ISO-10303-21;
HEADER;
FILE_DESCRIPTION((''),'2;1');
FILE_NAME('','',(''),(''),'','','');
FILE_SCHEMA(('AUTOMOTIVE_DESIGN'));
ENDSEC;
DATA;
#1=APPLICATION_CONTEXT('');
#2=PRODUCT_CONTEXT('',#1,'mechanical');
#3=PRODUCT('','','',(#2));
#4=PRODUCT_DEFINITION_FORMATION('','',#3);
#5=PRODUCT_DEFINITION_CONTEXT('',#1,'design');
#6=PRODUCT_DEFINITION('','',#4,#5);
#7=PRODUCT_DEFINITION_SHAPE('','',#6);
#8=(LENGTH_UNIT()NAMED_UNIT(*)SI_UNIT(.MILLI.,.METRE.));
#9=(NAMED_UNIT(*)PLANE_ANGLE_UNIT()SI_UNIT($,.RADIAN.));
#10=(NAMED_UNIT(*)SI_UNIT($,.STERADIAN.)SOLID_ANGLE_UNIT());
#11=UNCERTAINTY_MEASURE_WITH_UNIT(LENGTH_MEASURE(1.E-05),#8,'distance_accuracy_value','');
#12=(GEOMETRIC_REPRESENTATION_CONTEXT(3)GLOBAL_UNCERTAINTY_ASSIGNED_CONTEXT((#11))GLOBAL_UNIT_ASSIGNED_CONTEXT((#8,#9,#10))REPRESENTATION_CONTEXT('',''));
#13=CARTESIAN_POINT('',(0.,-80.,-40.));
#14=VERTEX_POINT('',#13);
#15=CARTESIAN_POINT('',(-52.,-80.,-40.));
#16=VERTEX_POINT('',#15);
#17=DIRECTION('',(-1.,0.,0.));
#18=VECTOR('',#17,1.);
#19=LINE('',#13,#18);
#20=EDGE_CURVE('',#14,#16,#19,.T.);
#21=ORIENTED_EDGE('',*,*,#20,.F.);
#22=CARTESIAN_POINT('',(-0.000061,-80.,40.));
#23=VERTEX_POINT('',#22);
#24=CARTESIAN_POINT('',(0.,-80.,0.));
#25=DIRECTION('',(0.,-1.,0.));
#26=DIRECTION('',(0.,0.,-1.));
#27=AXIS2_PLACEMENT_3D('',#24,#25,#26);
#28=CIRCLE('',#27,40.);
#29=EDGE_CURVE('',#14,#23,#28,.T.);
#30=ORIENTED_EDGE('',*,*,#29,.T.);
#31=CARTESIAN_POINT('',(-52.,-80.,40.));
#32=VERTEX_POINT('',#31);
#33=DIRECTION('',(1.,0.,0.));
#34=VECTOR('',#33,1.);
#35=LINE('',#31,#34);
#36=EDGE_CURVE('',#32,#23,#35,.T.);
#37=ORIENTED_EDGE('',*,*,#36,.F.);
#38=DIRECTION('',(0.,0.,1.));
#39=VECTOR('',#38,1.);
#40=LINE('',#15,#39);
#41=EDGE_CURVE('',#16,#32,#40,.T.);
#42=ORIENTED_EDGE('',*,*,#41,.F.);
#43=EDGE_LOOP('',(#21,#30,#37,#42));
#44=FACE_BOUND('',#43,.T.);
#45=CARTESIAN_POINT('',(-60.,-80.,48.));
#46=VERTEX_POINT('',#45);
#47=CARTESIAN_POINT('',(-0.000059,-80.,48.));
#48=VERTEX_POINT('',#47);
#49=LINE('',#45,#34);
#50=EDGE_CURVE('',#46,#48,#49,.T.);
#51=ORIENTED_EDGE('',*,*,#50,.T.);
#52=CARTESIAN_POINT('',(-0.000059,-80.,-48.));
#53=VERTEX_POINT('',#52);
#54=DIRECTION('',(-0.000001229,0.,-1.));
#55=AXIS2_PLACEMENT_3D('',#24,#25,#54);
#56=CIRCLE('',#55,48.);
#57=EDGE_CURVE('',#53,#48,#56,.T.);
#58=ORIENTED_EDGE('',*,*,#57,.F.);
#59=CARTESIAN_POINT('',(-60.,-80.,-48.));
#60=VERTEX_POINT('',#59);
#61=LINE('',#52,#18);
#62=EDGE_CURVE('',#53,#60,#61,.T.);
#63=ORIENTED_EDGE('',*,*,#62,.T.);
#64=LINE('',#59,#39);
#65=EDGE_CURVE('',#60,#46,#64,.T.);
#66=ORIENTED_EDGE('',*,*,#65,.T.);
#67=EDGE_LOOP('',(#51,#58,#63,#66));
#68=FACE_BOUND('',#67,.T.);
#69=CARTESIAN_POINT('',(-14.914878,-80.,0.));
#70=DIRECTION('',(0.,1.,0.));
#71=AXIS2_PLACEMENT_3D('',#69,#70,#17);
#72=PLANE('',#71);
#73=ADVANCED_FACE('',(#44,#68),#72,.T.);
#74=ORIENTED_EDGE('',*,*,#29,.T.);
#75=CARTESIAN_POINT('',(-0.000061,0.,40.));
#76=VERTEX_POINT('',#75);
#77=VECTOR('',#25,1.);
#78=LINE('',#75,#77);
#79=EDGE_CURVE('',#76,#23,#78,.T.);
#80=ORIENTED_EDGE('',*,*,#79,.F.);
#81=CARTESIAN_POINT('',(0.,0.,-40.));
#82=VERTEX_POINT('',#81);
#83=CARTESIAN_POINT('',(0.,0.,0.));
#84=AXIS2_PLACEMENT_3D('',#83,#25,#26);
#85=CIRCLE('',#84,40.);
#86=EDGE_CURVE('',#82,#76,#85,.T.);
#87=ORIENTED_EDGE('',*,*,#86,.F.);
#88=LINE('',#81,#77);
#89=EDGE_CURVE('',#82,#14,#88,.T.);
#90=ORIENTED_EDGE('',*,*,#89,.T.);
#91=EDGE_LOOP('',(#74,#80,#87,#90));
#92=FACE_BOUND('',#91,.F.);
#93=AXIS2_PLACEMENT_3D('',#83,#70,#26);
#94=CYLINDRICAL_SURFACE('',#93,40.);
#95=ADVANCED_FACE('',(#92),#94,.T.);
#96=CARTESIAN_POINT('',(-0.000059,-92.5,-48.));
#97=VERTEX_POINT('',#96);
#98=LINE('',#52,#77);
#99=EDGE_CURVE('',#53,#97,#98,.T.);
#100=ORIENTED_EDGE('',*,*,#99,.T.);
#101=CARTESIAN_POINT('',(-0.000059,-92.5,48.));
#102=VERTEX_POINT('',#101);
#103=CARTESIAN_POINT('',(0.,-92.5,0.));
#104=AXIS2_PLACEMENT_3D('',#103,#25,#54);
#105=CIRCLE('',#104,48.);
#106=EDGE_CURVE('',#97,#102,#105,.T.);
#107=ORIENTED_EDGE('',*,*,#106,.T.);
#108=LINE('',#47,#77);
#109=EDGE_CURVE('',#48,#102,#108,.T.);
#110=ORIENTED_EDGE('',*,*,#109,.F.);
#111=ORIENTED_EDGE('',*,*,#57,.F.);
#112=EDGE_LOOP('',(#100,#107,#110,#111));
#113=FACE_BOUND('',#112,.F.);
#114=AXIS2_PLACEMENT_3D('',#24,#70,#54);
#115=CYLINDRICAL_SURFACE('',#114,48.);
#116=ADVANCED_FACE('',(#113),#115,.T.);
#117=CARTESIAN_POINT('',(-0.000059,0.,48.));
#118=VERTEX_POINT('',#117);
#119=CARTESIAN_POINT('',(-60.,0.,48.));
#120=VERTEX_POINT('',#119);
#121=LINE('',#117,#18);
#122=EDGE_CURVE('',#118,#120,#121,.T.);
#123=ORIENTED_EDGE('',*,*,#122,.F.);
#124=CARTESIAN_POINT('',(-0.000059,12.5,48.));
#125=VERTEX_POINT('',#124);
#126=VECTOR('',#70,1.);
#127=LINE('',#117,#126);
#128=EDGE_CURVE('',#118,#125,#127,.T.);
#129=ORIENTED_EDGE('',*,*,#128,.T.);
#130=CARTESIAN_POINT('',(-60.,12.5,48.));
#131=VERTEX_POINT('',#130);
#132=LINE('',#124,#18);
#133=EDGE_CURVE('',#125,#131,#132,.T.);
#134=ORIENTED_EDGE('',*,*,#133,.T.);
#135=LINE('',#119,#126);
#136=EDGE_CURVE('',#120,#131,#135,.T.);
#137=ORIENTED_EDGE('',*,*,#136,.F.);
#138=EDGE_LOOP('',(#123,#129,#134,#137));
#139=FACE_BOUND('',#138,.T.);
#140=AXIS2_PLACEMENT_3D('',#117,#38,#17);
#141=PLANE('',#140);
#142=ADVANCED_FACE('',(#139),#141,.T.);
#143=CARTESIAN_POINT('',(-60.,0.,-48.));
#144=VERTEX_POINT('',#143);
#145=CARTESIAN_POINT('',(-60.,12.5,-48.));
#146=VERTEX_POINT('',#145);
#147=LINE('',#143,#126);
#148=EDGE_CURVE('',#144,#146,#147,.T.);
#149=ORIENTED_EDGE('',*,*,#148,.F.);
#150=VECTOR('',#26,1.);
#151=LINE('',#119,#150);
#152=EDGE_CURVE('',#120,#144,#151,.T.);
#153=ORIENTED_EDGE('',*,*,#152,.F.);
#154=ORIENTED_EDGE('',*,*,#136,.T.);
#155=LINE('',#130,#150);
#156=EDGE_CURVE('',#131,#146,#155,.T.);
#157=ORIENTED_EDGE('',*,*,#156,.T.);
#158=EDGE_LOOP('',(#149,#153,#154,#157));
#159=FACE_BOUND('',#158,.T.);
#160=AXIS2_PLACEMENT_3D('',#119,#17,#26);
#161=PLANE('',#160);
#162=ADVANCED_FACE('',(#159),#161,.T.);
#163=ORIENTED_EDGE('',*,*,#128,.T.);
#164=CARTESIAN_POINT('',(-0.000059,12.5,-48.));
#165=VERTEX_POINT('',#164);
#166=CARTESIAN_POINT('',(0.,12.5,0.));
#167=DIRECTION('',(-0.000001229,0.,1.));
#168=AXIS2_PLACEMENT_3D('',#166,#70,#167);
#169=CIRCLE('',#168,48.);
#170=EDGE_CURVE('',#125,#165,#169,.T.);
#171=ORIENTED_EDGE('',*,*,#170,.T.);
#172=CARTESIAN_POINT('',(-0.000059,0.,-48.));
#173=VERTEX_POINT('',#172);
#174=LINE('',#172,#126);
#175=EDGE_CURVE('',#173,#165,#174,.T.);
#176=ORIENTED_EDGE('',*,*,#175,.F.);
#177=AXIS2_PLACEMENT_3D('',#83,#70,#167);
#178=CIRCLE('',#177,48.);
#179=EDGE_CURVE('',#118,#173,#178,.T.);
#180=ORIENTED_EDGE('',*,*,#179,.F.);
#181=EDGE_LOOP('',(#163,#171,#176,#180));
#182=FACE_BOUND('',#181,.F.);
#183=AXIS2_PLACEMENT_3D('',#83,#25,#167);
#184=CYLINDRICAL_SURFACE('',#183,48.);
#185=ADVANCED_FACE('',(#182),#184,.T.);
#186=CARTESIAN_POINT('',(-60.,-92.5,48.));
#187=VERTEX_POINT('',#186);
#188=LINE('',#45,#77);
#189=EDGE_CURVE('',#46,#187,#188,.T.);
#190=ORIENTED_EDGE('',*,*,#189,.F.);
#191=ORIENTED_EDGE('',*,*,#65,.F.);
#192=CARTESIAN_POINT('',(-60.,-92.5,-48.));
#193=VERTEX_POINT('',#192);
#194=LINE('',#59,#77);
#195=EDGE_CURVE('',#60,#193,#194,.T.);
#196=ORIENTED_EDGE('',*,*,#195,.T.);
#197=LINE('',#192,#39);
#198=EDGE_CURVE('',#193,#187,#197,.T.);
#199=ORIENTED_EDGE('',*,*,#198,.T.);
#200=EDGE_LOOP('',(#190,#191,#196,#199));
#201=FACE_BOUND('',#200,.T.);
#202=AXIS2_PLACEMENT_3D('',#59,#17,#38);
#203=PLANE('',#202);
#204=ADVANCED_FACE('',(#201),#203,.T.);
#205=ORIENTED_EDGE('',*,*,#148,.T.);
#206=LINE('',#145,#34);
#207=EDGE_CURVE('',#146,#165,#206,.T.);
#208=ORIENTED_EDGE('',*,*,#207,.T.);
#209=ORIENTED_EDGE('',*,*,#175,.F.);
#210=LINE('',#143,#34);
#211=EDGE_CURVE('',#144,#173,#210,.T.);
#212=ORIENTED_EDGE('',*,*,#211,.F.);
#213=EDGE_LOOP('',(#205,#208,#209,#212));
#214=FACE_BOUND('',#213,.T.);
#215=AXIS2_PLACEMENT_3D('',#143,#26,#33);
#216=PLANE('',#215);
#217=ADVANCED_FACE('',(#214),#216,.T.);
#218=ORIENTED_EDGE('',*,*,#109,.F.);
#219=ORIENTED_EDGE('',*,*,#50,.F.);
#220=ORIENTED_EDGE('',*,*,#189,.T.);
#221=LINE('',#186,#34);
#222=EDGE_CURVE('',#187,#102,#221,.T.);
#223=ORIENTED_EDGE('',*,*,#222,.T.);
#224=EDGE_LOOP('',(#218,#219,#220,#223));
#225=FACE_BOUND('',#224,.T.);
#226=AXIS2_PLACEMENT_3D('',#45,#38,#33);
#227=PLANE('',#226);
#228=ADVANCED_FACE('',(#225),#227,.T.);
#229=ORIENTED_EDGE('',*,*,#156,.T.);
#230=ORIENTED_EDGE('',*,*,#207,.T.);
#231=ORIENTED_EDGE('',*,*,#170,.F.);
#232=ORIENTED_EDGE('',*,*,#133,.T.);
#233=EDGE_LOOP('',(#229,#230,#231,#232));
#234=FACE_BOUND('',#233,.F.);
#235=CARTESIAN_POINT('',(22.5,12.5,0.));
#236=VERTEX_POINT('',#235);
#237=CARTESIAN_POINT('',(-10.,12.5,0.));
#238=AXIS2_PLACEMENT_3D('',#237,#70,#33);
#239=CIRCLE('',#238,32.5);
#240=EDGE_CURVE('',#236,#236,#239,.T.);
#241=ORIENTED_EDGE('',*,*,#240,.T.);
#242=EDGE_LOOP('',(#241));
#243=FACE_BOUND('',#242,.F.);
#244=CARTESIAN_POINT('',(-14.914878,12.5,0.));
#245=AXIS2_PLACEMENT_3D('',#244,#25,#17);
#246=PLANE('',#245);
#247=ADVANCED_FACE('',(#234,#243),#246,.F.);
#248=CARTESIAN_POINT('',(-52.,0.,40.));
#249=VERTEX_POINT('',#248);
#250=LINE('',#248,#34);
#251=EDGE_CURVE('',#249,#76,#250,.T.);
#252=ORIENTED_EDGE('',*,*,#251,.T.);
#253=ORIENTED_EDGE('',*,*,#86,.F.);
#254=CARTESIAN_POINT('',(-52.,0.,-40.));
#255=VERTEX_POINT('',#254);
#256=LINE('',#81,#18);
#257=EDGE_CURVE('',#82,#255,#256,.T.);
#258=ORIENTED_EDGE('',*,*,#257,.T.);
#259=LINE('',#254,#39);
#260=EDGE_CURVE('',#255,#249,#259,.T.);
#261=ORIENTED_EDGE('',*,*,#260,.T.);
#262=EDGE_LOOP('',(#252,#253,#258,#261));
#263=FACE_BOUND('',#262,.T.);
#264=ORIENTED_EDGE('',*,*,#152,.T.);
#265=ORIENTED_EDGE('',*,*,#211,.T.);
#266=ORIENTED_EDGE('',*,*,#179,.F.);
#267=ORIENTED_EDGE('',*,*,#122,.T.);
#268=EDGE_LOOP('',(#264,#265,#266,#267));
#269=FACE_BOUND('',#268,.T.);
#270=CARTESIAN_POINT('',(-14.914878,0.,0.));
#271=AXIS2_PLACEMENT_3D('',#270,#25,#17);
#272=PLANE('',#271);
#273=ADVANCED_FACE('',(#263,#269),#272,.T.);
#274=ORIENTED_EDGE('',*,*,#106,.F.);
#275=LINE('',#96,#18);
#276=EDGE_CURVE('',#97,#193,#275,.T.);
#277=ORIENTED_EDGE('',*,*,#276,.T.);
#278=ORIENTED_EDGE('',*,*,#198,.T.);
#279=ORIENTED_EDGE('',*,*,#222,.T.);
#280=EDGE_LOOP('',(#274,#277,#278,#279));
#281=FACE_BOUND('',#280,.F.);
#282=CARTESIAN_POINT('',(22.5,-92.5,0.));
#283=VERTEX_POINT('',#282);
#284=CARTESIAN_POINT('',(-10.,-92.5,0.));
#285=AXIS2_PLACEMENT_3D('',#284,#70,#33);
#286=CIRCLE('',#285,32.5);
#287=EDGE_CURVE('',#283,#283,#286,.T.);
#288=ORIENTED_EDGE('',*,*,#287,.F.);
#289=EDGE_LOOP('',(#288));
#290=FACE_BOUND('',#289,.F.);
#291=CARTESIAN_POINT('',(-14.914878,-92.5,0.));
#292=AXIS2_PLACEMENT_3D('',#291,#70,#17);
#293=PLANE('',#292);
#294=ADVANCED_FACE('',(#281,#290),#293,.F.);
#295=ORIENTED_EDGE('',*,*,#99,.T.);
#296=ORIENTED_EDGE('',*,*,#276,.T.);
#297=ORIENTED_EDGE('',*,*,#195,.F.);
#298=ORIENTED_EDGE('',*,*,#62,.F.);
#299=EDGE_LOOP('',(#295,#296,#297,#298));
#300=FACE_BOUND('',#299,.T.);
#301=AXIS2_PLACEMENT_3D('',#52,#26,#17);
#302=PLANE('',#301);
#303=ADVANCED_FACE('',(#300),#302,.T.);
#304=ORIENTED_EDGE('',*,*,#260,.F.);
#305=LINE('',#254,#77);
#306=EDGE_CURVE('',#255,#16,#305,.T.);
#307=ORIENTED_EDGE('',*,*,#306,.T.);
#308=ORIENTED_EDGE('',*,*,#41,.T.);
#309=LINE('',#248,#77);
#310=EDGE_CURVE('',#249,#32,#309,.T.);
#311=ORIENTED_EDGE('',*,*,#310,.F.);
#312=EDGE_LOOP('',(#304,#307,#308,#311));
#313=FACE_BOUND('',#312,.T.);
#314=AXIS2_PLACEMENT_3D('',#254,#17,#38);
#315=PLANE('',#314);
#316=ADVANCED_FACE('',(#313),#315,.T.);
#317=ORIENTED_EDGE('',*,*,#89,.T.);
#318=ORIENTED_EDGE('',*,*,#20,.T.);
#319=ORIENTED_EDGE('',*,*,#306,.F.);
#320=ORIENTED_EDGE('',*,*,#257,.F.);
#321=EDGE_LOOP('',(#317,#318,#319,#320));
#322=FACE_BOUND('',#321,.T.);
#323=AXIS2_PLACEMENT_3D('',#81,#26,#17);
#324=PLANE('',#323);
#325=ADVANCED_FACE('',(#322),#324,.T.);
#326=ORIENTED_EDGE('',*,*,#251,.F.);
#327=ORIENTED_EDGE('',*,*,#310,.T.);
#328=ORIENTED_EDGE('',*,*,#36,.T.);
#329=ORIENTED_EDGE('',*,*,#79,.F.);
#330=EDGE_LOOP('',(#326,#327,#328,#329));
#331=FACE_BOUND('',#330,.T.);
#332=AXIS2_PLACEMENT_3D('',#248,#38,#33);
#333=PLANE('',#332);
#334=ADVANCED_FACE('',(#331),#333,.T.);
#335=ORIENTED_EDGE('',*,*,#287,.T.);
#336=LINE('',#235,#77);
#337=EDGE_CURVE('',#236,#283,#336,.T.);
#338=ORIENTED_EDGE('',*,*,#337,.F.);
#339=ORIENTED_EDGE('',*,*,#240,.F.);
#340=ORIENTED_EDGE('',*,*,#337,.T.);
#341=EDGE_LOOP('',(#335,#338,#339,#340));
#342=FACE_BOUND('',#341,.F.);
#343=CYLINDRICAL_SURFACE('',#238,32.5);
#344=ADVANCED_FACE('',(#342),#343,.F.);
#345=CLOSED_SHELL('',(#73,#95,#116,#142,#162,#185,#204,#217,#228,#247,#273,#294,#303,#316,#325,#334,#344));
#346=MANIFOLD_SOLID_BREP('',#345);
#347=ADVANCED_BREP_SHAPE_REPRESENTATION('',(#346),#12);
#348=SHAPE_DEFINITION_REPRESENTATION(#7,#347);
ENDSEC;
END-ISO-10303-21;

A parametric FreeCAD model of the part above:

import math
import FreeCAD as App
import Part
import Sketcher

doc = App.newDocument("Part")
body = doc.addObject("PartDesign::Body", "Body")

sketch1 = body.newObject("Sketcher::SketchObject", "Sketch")
sketch1.AttachmentSupport = (doc.getObject("XZ_Plane"), [""])
sketch1.MapMode = "FlatFace"
sketch1.addGeometry([
    Part.ArcOfCircle(Part.Circle(App.Vector(0, 0, 0), App.Vector(0, 0, 1), 40), math.radians(-90), math.radians(90.000087)),
    Part.LineSegment(App.Vector(-0.000061, 40, 0), App.Vector(-52, 40, 0)),
    Part.LineSegment(App.Vector(-52, 40, 0), App.Vector(-52, -40, 0)),
    Part.LineSegment(App.Vector(-52, -40, 0), App.Vector(0, -40, 0)),
], False)
sketch1.addConstraint([
    Sketcher.Constraint("Coincident", 0, 2, 1, 1),
    Sketcher.Constraint("Coincident", 1, 2, 2, 1),
    Sketcher.Constraint("Coincident", 2, 2, 3, 1),
    Sketcher.Constraint("Coincident", 3, 2, 0, 1),
    Sketcher.Constraint("Horizontal", 1),
    Sketcher.Constraint("Vertical", 2),
    Sketcher.Constraint("Horizontal", 3),
    Sketcher.Constraint("Coincident", 0, 3, -1, 1),
    Sketcher.Constraint("PointOnObject", 3, 2, -2),
    Sketcher.Constraint("Radius", 0, 40.0),
    Sketcher.Constraint("DistanceX", 3, 1, 3, 2, 52.0),
    Sketcher.Constraint("DistanceX", 1, 2, 1, 1, 51.999939),
])
pad1 = body.newObject("PartDesign::Pad", "Pad")
pad1.Profile = sketch1
pad1.Length = 80

sketch2 = body.newObject("Sketcher::SketchObject", "Sketch001")
sketch2.AttachmentSupport = (doc.getObject("XZ_Plane"), [""])
sketch2.MapMode = "FlatFace"
sketch2.AttachmentOffset = App.Placement(App.Vector(0, 0, 80), App.Rotation())
sketch2.addGeometry([
    Part.LineSegment(App.Vector(-0.000059, 48, 0), App.Vector(-60, 48, 0)),
    Part.LineSegment(App.Vector(-60, 48, 0), App.Vector(-60, -48, 0)),
    Part.LineSegment(App.Vector(-60, -48, 0), App.Vector(-0.000059, -48, 0)),
    Part.ArcOfCircle(Part.Circle(App.Vector(0, 0, 0), App.Vector(0, 0, 1), 48), math.radians(-90.00007), math.radians(90.00007)),
], False)
sketch2.addConstraint([
    Sketcher.Constraint("Coincident", 0, 2, 1, 1),
    Sketcher.Constraint("Coincident", 1, 2, 2, 1),
    Sketcher.Constraint("Coincident", 2, 2, 3, 1),
    Sketcher.Constraint("Coincident", 3, 2, 0, 1),
    Sketcher.Constraint("Horizontal", 0),
    Sketcher.Constraint("Vertical", 1),
    Sketcher.Constraint("Horizontal", 2),
    Sketcher.Constraint("Coincident", 3, 3, -1, 1),
    Sketcher.Constraint("Radius", 3, 48.0),
    Sketcher.Constraint("DistanceX", 0, 2, -1, 1, 60.0),
    Sketcher.Constraint("DistanceX", 0, 2, 0, 1, 59.999941),
    Sketcher.Constraint("DistanceX", 2, 1, 2, 2, 59.999941),
])
pad2 = body.newObject("PartDesign::Pad", "Pad001")
pad2.Profile = sketch2
pad2.Length = 12.5

sketch3 = body.newObject("Sketcher::SketchObject", "Sketch002")
sketch3.AttachmentSupport = (doc.getObject("XZ_Plane"), [""])
sketch3.MapMode = "FlatFace"
sketch3.addGeometry([
    Part.LineSegment(App.Vector(-0.000059, -48, 0), App.Vector(-60, -48, 0)),
    Part.LineSegment(App.Vector(-60, -48, 0), App.Vector(-60, 48, 0)),
    Part.LineSegment(App.Vector(-60, 48, 0), App.Vector(-0.000059, 48, 0)),
    Part.ArcOfCircle(Part.Circle(App.Vector(0, 0, 0), App.Vector(0, 0, 1), 48), math.radians(-90.00007), math.radians(90.00007)),
], False)
sketch3.addConstraint([
    Sketcher.Constraint("Coincident", 0, 2, 1, 1),
    Sketcher.Constraint("Coincident", 1, 2, 2, 1),
    Sketcher.Constraint("Coincident", 2, 2, 3, 2),
    Sketcher.Constraint("Coincident", 3, 1, 0, 1),
    Sketcher.Constraint("Horizontal", 0),
    Sketcher.Constraint("Vertical", 1),
    Sketcher.Constraint("Horizontal", 2),
    Sketcher.Constraint("Coincident", 3, 3, -1, 1),
    Sketcher.Constraint("Radius", 3, 48.0),
    Sketcher.Constraint("DistanceX", 0, 2, -1, 1, 60.0),
    Sketcher.Constraint("DistanceX", 0, 2, 0, 1, 59.999941),
    Sketcher.Constraint("DistanceX", 2, 1, 2, 2, 59.999941),
])
pad3 = body.newObject("PartDesign::Pad", "Pad002")
pad3.Profile = sketch3
pad3.Length = 12.5
pad3.Reversed = True

sketch4 = body.newObject("Sketcher::SketchObject", "Sketch003")
sketch4.AttachmentSupport = (doc.getObject("XZ_Plane"), [""])
sketch4.MapMode = "FlatFace"
sketch4.AttachmentOffset = App.Placement(App.Vector(0, 0, -12.5), App.Rotation())
sketch4.addGeometry(Part.Circle(App.Vector(-10, 0, 0), App.Vector(0, 0, 1), 32.5), False)
sketch4.addConstraint([
    Sketcher.Constraint("PointOnObject", 0, 3, -1),
    Sketcher.Constraint("Diameter", 0, 65.0),
    Sketcher.Constraint("DistanceX", 0, 3, -1, 1, 10.0),
])
pocket1 = body.newObject("PartDesign::Pocket", "Pocket")
pocket1.Profile = sketch4
pocket1.Type = "ThroughAll"
pocket1.Reversed = True

doc.recompute()
